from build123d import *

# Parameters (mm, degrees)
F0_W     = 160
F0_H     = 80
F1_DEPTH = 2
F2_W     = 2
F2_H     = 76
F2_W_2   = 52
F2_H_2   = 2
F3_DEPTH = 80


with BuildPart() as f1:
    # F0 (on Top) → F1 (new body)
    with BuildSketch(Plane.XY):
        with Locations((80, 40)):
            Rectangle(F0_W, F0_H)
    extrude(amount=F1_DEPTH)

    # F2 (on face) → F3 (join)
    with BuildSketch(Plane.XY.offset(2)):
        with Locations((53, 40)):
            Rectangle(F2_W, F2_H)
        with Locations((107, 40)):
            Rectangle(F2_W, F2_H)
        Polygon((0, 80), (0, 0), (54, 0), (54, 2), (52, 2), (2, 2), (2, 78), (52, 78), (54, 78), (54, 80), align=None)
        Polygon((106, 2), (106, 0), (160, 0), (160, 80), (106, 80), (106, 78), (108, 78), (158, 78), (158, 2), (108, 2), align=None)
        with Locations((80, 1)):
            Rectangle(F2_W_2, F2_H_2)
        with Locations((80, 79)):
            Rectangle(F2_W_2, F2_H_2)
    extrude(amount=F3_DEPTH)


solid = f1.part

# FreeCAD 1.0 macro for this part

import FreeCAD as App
import Part
import Sketcher
Q = App.Units.Quantity


def add_polygon(sketch, points):
    """Adds a closed chain of lines whose ends are joined by coincident constraints."""
    first, n = sketch.GeometryCount, len(points)
    for a, b in zip(points, points[1:] + points[:1]):
        sketch.addGeometry(Part.LineSegment(App.Vector(*a, 0), App.Vector(*b, 0)), False)
    for i in range(n):
        sketch.addConstraint(Sketcher.Constraint("Coincident", first + i, 2, first + (i + 1) % n, 1))

doc = App.newDocument("Part")
body = doc.addObject("PartDesign::Body", "Body")

# Sketch on XY plane
sketch1 = body.newObject("Sketcher::SketchObject", "Sketch")
sketch1.AttachmentSupport = (doc.getObject("XY_Plane"), [""])
sketch1.MapMode = "FlatFace"
add_polygon(sketch1, [(0, 80), (0, 0), (160, 0), (160, 80)])  # lines 0-3
sketch1.addConstraint(Sketcher.Constraint("Vertical", 0))
sketch1.addConstraint(Sketcher.Constraint("Horizontal", 1))
sketch1.addConstraint(Sketcher.Constraint("Vertical", 2))
sketch1.addConstraint(Sketcher.Constraint("Horizontal", 3))
sketch1.addConstraint(Sketcher.Constraint("Coincident", 0, 2, -1, 1))
sketch1.addConstraint(Sketcher.Constraint("DistanceX", 1, 1, 1, 2, Q("160 mm")))
sketch1.addConstraint(Sketcher.Constraint("DistanceY", 0, 2, 0, 1, Q("80 mm")))
pad1 = body.newObject("PartDesign::Pad", "Pad")
pad1.Profile = sketch1
pad1.Length = 2

# Sketch on XY plane
sketch2 = body.newObject("Sketcher::SketchObject", "Sketch001")
sketch2.AttachmentSupport = (doc.getObject("XY_Plane"), [""])
sketch2.MapMode = "FlatFace"
sketch2.AttachmentOffset = App.Placement(App.Vector(0, 0, 2), App.Rotation())
add_polygon(sketch2, [(0, 80), (0, 0), (160, 0), (160, 80)])  # lines 0-3
add_polygon(sketch2, [(52, 78), (52, 2), (2, 2), (2, 78)])  # lines 4-7
add_polygon(sketch2, [(106, 78), (106, 2), (54, 2), (54, 78)])  # lines 8-11
add_polygon(sketch2, [(158, 2), (108, 2), (108, 78), (158, 78)])  # lines 12-15
sketch2.addConstraint(Sketcher.Constraint("Vertical", 0))
sketch2.addConstraint(Sketcher.Constraint("Horizontal", 1))
sketch2.addConstraint(Sketcher.Constraint("Vertical", 2))
sketch2.addConstraint(Sketcher.Constraint("Horizontal", 3))
sketch2.addConstraint(Sketcher.Constraint("Vertical", 4))
sketch2.addConstraint(Sketcher.Constraint("Horizontal", 5))
sketch2.addConstraint(Sketcher.Constraint("Vertical", 6))
sketch2.addConstraint(Sketcher.Constraint("Horizontal", 7))
sketch2.addConstraint(Sketcher.Constraint("Vertical", 8))
sketch2.addConstraint(Sketcher.Constraint("Horizontal", 9))
sketch2.addConstraint(Sketcher.Constraint("Vertical", 10))
sketch2.addConstraint(Sketcher.Constraint("Horizontal", 11))
sketch2.addConstraint(Sketcher.Constraint("Horizontal", 12))
sketch2.addConstraint(Sketcher.Constraint("Vertical", 13))
sketch2.addConstraint(Sketcher.Constraint("Horizontal", 14))
sketch2.addConstraint(Sketcher.Constraint("Vertical", 15))
sketch2.addConstraint(Sketcher.Constraint("Coincident", 0, 2, -1, 1))
sketch2.addConstraint(Sketcher.Constraint("Horizontal", 5, 2, 8, 2))
sketch2.addConstraint(Sketcher.Constraint("Horizontal", 7, 2, 10, 2))
sketch2.addConstraint(Sketcher.Constraint("Horizontal", 9, 2, 12, 2))
sketch2.addConstraint(Sketcher.Constraint("Horizontal", 11, 2, 13, 2))
sketch2.addConstraint(Sketcher.Constraint("Equal", 7, 12))
sketch2.addConstraint(Sketcher.Constraint("DistanceX", 1, 1, 1, 2, Q("160 mm")))
sketch2.addConstraint(Sketcher.Constraint("DistanceX", 5, 2, 5, 1, Q("50 mm")))
sketch2.addConstraint(Sketcher.Constraint("DistanceX", 9, 2, 9, 1, Q("52 mm")))
sketch2.addConstraint(Sketcher.Constraint("DistanceY", 0, 2, 0, 1, Q("80 mm")))
sketch2.addConstraint(Sketcher.Constraint("DistanceY", 4, 2, 4, 1, Q("76 mm")))
sketch2.addConstraint(Sketcher.Constraint("DistanceX", -1, 1, 4, 2, Q("52 mm")))
sketch2.addConstraint(Sketcher.Constraint("DistanceY", -1, 1, 4, 2, Q("2 mm")))
sketch2.addConstraint(Sketcher.Constraint("DistanceX", -1, 1, 8, 2, Q("106 mm")))
sketch2.addConstraint(Sketcher.Constraint("DistanceX", -1, 1, 12, 2, Q("108 mm")))
pad2 = body.newObject("PartDesign::Pad", "Pad001")
pad2.Profile = sketch2
pad2.Length = 80

doc.recompute()
